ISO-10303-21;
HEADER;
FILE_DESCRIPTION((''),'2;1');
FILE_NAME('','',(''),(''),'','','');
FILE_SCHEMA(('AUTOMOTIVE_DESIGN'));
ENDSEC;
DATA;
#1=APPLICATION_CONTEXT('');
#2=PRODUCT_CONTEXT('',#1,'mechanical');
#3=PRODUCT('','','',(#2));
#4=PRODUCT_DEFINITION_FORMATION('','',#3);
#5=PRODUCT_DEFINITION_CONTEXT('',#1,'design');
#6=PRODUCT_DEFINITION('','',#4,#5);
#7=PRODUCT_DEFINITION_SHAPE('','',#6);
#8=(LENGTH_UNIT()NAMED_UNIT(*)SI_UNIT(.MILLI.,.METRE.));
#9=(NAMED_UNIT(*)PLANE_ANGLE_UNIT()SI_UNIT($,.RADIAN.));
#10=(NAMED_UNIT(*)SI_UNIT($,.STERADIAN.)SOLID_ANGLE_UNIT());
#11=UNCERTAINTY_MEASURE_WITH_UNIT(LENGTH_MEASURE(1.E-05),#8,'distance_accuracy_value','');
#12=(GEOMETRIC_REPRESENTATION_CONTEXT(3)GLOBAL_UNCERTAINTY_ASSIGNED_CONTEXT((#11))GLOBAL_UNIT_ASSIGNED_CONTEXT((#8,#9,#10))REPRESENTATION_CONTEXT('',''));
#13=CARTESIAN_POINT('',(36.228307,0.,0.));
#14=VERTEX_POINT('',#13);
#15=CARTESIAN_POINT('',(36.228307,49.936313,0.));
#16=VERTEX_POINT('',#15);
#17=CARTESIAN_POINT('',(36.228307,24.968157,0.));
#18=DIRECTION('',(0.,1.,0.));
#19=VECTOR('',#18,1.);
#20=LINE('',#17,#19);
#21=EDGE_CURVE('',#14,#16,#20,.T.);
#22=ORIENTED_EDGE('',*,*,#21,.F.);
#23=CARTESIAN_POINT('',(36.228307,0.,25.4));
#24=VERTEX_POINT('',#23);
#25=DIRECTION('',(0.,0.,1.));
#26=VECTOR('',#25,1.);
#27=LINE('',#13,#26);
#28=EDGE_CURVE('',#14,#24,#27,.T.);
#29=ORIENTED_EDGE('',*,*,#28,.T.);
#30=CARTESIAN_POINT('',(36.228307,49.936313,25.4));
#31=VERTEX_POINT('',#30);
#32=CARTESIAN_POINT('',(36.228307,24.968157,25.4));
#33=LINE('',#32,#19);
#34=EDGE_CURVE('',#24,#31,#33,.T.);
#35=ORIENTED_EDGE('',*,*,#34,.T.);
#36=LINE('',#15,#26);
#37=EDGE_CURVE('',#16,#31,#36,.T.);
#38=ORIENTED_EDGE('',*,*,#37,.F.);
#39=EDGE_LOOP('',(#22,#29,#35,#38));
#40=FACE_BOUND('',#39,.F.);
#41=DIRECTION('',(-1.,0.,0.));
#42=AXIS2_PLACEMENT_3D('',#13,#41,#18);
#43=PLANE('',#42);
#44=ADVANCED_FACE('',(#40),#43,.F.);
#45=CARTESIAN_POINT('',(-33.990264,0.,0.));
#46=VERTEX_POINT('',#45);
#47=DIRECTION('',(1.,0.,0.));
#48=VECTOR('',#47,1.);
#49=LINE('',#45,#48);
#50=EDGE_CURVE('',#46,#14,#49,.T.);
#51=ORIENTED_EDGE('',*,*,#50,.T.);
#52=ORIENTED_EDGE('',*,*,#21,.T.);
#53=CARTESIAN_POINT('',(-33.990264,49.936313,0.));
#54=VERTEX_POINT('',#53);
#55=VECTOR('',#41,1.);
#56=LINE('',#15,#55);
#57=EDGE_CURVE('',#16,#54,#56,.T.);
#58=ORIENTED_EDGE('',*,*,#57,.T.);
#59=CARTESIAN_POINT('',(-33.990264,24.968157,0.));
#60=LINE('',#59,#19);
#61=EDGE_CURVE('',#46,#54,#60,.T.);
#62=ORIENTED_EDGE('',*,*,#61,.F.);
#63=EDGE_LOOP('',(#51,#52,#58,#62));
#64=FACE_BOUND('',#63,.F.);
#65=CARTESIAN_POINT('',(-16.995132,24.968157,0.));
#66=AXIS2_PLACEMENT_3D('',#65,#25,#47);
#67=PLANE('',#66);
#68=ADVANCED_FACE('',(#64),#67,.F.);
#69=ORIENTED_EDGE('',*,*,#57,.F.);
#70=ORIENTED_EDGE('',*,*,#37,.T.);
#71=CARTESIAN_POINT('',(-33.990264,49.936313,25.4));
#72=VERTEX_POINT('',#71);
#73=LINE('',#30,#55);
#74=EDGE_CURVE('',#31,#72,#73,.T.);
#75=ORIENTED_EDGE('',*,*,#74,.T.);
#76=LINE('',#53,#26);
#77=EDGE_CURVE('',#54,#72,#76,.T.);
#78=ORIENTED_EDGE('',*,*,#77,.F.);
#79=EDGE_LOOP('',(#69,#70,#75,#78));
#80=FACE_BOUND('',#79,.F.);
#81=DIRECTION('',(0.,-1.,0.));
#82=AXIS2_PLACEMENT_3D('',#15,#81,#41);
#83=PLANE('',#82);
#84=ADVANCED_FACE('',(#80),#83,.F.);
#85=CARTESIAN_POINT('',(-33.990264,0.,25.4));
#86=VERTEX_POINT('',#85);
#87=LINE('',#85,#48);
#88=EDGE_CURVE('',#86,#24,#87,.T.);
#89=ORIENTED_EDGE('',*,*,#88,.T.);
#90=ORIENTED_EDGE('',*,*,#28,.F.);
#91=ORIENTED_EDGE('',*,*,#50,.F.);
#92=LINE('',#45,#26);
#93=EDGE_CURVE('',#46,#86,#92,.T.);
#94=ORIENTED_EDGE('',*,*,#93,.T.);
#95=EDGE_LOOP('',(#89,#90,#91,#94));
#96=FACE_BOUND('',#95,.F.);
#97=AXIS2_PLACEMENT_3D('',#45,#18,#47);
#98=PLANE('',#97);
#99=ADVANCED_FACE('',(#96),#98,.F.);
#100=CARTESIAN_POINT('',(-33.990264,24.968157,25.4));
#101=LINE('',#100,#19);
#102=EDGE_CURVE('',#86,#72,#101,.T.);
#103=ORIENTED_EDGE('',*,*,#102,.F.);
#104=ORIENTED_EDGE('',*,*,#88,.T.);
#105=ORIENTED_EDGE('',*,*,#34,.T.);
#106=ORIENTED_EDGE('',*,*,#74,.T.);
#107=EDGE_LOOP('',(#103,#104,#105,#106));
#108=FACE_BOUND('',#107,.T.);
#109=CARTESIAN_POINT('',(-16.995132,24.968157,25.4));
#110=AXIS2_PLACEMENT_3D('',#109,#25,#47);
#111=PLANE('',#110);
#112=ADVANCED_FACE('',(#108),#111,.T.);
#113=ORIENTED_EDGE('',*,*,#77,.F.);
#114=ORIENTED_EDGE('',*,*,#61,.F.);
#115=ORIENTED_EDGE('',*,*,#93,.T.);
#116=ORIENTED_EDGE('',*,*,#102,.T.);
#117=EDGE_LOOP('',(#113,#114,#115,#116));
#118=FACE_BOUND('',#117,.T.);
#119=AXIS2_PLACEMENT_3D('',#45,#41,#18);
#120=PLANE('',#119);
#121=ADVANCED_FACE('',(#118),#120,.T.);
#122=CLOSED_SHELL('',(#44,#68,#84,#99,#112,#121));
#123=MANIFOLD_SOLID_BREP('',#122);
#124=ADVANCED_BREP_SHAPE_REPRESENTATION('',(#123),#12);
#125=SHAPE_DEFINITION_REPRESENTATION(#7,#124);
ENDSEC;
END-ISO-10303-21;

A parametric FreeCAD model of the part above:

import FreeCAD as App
import Part
import Sketcher
Q = App.Units.Quantity


def add_polygon(sketch, points):
    """Adds a closed chain of lines whose ends are joined by coincident constraints."""
    first, n = sketch.GeometryCount, len(points)
    for a, b in zip(points, points[1:] + points[:1]):
        sketch.addGeometry(Part.LineSegment(App.Vector(*a, 0), App.Vector(*b, 0)), False)
    for i in range(n):
        sketch.addConstraint(Sketcher.Constraint("Coincident", first + i, 2, first + (i + 1) % n, 1))

doc = App.newDocument("Part")
body = doc.addObject("PartDesign::Body", "Body")

# Sketch on XY plane
sketch1 = body.newObject("Sketcher::SketchObject", "Sketch")
sketch1.AttachmentSupport = (doc.getObject("XY_Plane"), [""])
sketch1.MapMode = "FlatFace"
add_polygon(sketch1, [(-34, 50), (-34, 0), (36, 0), (36, 50)])  # lines 0-3
sketch1.addConstraint([
    Sketcher.Constraint("Vertical", 0),
    Sketcher.Constraint("Horizontal", 1),
    Sketcher.Constraint("Vertical", 2),
    Sketcher.Constraint("Horizontal", 3),
    Sketcher.Constraint("PointOnObject", 0, 2, -1),
    Sketcher.Constraint("DistanceX", 1, 1, 1, 2, Q("70.218571 mm")),
    Sketcher.Constraint("DistanceY", 0, 2, 0, 1, Q("49.936313 mm")),
    Sketcher.Constraint("DistanceX", 0, 2, -1, 1, Q("33.990264 mm")),
])
pad1 = body.newObject("PartDesign::Pad", "Pad")
pad1.Profile = sketch1
pad1.Length = Q("1 in")

doc.recompute()
